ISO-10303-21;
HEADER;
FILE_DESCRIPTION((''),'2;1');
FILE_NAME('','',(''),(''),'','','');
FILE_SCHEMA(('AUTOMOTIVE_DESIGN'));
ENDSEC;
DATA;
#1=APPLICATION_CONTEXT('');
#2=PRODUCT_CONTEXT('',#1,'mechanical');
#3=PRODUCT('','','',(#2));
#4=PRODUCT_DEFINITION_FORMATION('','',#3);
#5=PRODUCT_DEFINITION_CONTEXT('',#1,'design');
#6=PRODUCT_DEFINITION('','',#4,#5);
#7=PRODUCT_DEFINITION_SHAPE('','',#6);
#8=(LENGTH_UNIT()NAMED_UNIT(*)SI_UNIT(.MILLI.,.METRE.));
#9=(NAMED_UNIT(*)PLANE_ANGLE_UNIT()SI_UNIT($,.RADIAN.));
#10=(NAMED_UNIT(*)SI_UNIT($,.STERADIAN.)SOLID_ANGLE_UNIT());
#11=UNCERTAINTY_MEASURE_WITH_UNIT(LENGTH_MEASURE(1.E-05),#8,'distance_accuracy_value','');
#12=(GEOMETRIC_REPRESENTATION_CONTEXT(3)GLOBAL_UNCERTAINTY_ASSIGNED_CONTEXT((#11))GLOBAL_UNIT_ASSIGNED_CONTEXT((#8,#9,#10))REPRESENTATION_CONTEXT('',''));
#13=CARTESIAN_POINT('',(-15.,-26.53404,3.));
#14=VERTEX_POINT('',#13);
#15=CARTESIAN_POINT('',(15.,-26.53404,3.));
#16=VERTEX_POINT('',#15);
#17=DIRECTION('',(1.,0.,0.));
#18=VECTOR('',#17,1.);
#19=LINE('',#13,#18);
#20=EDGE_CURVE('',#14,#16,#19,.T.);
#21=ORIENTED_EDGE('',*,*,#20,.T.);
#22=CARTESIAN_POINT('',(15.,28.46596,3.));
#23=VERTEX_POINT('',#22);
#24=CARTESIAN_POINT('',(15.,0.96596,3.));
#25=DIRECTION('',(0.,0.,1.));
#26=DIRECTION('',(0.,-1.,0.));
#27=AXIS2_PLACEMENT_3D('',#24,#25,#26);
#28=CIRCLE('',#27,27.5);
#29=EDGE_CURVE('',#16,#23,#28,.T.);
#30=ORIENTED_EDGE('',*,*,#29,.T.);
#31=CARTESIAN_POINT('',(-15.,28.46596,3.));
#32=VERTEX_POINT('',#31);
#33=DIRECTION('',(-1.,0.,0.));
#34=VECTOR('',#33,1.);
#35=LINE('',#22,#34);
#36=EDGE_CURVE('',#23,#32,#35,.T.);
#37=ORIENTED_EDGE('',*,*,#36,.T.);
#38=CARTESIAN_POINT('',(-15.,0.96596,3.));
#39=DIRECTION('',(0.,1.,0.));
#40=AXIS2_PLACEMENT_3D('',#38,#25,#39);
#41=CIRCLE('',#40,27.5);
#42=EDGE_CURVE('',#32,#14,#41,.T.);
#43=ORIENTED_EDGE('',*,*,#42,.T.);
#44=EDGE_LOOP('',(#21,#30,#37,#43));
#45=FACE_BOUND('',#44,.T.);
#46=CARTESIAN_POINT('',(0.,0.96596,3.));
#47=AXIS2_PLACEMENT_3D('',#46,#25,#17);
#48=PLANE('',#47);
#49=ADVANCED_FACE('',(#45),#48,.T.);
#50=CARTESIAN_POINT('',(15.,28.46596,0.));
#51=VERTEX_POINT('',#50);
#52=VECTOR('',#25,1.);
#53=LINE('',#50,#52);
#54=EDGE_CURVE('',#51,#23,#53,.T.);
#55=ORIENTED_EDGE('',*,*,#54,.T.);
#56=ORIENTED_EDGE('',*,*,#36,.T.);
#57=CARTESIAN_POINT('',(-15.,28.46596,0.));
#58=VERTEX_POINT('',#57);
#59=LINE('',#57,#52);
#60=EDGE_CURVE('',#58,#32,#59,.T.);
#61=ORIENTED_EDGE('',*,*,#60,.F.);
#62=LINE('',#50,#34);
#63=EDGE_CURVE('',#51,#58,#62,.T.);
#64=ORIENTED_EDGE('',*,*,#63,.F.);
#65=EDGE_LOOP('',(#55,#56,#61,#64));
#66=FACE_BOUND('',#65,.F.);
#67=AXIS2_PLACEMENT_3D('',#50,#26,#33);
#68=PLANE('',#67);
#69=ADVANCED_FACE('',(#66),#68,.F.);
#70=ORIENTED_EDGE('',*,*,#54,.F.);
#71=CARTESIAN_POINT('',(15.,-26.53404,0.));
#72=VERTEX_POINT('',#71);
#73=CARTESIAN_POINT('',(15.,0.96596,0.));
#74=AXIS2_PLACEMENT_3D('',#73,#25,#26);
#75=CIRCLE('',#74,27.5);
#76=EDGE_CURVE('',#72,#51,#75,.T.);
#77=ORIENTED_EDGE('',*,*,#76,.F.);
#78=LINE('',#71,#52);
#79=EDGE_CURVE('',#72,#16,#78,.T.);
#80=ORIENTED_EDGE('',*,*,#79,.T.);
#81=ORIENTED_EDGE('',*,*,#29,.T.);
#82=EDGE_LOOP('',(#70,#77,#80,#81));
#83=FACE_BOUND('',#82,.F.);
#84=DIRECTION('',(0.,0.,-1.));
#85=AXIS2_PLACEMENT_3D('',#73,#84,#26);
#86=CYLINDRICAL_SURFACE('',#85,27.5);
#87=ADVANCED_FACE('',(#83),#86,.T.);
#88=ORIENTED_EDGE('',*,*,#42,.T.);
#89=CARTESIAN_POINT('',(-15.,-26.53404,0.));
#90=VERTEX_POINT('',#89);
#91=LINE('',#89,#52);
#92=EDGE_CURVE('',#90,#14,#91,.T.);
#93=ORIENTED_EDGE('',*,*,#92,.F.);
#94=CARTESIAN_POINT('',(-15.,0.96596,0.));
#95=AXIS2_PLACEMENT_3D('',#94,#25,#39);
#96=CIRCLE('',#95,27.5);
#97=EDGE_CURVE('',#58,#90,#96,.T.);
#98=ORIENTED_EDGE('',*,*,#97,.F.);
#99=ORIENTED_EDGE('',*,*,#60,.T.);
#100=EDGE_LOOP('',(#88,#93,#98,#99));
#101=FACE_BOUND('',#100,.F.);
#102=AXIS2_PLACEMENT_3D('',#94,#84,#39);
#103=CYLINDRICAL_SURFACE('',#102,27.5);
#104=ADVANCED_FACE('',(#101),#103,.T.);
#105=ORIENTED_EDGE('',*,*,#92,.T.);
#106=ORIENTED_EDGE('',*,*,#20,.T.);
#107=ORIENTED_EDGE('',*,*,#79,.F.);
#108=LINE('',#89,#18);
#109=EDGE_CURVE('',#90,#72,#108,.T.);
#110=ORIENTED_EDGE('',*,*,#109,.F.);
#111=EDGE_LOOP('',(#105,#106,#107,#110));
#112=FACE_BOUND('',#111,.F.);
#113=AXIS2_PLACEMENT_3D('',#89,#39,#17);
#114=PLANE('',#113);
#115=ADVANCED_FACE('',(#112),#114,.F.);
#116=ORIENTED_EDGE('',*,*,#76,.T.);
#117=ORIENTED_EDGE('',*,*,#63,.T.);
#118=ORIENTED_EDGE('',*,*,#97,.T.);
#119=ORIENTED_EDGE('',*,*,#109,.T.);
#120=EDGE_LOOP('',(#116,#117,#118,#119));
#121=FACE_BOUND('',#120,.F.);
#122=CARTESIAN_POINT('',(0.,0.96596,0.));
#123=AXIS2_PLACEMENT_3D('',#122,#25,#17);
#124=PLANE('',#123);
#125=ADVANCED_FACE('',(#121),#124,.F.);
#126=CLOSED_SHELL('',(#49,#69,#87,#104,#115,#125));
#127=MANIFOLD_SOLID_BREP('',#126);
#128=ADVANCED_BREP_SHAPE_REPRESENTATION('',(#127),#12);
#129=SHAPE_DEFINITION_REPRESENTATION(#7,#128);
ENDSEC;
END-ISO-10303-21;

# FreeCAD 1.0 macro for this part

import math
import FreeCAD as App
import Part
import Sketcher
from FreeCAD import Vector
Q = App.Units.Quantity

doc = App.newDocument("Part")
body = doc.addObject("PartDesign::Body", "Body")

# Sketch on XY plane
sketch1 = body.newObject("Sketcher::SketchObject", "Sketch")
sketch1.AttachmentSupport = (doc.getObject("XY_Plane"), [""])
sketch1.MapMode = "FlatFace"
sketch1.addGeometry(Part.ArcOfCircle(Part.Circle(Vector(-15, 1, 0), Vector(0, 0, 1), 28), math.radians(90), math.radians(270)), False)
sketch1.addGeometry(Part.LineSegment(Vector(-15, -27, 0), Vector(15, -27, 0)), False)
sketch1.addGeometry(Part.ArcOfCircle(Part.Circle(Vector(15, 1, 0), Vector(0, 0, 1), 28), math.radians(-90), math.radians(90)), False)
sketch1.addGeometry(Part.LineSegment(Vector(15, 28, 0), Vector(-15, 28, 0)), False)
sketch1.addConstraint(Sketcher.Constraint("Tangent", 0, 2, 1, 1))
sketch1.addConstraint(Sketcher.Constraint("Tangent", 1, 2, 2, 1))
sketch1.addConstraint(Sketcher.Constraint("Tangent", 2, 2, 3, 1))
sketch1.addConstraint(Sketcher.Constraint("Tangent", 3, 2, 0, 1))
sketch1.addConstraint(Sketcher.Constraint("Horizontal", 1))
sketch1.addConstraint(Sketcher.Constraint("Horizontal", 3))
sketch1.addConstraint(Sketcher.Constraint("Radius", 0, Q("27.5 mm")))
sketch1.addConstraint(Sketcher.Constraint("DistanceX", 1, 1, 1, 2, Q("30 mm")))
sketch1.addConstraint(Sketcher.Constraint("DistanceX", 0, 3, -1, 1, Q("15 mm")))
sketch1.addConstraint(Sketcher.Constraint("DistanceY", -1, 1, 0, 3, Q("0.96596 mm")))
pad1 = body.newObject("PartDesign::Pad", "Pad")
pad1.Profile = sketch1
pad1.Length = 3

doc.recompute()
